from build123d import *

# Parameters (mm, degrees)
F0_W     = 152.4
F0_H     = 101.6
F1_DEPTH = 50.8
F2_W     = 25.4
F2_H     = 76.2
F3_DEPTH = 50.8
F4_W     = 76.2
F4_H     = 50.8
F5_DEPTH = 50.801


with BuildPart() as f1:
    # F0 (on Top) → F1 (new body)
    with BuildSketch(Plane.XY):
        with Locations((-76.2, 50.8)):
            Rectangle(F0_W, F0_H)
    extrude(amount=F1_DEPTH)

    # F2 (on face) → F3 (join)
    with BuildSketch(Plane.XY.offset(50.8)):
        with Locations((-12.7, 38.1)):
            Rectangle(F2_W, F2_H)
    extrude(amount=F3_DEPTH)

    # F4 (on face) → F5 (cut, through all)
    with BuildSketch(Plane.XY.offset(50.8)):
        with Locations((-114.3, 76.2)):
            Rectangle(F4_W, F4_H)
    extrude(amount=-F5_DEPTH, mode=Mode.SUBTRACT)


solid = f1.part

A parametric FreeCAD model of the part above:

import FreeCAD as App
import Part
import Sketcher
from FreeCAD import Vector
Q = App.Units.Quantity


def add_polygon(sketch, points):
    """Adds a closed chain of lines whose ends are joined by coincident constraints."""
    first, n = sketch.GeometryCount, len(points)
    for a, b in zip(points, points[1:] + points[:1]):
        sketch.addGeometry(Part.LineSegment(App.Vector(*a, 0), App.Vector(*b, 0)), False)
    for i in range(n):
        sketch.addConstraint(Sketcher.Constraint("Coincident", first + i, 2, first + (i + 1) % n, 1))

doc = App.newDocument("Part")
body = doc.addObject("PartDesign::Body", "Body")

# Sketch on XY plane
sketch1 = body.newObject("Sketcher::SketchObject", "Sketch")
sketch1.AttachmentSupport = (doc.getObject("XY_Plane"), [""])
sketch1.MapMode = "FlatFace"
add_polygon(sketch1, [(-152, 102), (-152, 0), (0, 0), (0, 102)])  # lines 0-3
sketch1.addConstraint(Sketcher.Constraint("Vertical", 0))
sketch1.addConstraint(Sketcher.Constraint("Horizontal", 1))
sketch1.addConstraint(Sketcher.Constraint("Vertical", 2))
sketch1.addConstraint(Sketcher.Constraint("Horizontal", 3))
sketch1.addConstraint(Sketcher.Constraint("Coincident", 1, 2, -1, 1))
sketch1.addConstraint(Sketcher.Constraint("DistanceX", 1, 1, 1, 2, Q("6 in")))
sketch1.addConstraint(Sketcher.Constraint("DistanceY", 0, 2, 0, 1, Q("4 in")))
pad1 = body.newObject("PartDesign::Pad", "Pad")
pad1.Profile = sketch1
pad1.Length = Q("2 in")

# Sketch on XY plane
sketch2 = body.newObject("Sketcher::SketchObject", "Sketch001")
sketch2.AttachmentSupport = (doc.getObject("XY_Plane"), [""])
sketch2.MapMode = "FlatFace"
sketch2.AttachmentOffset = App.Placement(Vector(0, 0, 2 * 25.4), App.Rotation())
add_polygon(sketch2, [(-25, 76), (-25, 0), (0, 0), (0, 76)])  # lines 0-3
sketch2.addConstraint(Sketcher.Constraint("Vertical", 0))
sketch2.addConstraint(Sketcher.Constraint("Horizontal", 1))
sketch2.addConstraint(Sketcher.Constraint("Vertical", 2))
sketch2.addConstraint(Sketcher.Constraint("Horizontal", 3))
sketch2.addConstraint(Sketcher.Constraint("Coincident", 1, 2, -1, 1))
sketch2.addConstraint(Sketcher.Constraint("DistanceX", 1, 1, 1, 2, Q("1 in")))
sketch2.addConstraint(Sketcher.Constraint("DistanceY", 0, 2, 0, 1, Q("3 in")))
pad2 = body.newObject("PartDesign::Pad", "Pad001")
pad2.Profile = sketch2
pad2.Length = Q("2 in")

# Sketch on XY plane
sketch3 = body.newObject("Sketcher::SketchObject", "Sketch002")
sketch3.AttachmentSupport = (doc.getObject("XY_Plane"), [""])
sketch3.MapMode = "FlatFace"
sketch3.AttachmentOffset = App.Placement(Vector(0, 0, 2 * 25.4), App.Rotation())
add_polygon(sketch3, [(-152, 102), (-152, 51), (-76, 51), (-76, 102)])  # lines 0-3
sketch3.addConstraint(Sketcher.Constraint("Vertical", 0))
sketch3.addConstraint(Sketcher.Constraint("Horizontal", 1))
sketch3.addConstraint(Sketcher.Constraint("Vertical", 2))
sketch3.addConstraint(Sketcher.Constraint("Horizontal", 3))
sketch3.addConstraint(Sketcher.Constraint("DistanceX", 1, 1, 1, 2, Q("3 in")))
sketch3.addConstraint(Sketcher.Constraint("DistanceY", 0, 2, 0, 1, Q("2 in")))
sketch3.addConstraint(Sketcher.Constraint("DistanceX", 0, 2, -1, 1, Q("6 in")))
sketch3.addConstraint(Sketcher.Constraint("DistanceY", -1, 1, 0, 2, Q("2 in")))
pocket1 = body.newObject("PartDesign::Pocket", "Pocket")
pocket1.Profile = sketch3
pocket1.Type = "ThroughAll"

doc.recompute()
